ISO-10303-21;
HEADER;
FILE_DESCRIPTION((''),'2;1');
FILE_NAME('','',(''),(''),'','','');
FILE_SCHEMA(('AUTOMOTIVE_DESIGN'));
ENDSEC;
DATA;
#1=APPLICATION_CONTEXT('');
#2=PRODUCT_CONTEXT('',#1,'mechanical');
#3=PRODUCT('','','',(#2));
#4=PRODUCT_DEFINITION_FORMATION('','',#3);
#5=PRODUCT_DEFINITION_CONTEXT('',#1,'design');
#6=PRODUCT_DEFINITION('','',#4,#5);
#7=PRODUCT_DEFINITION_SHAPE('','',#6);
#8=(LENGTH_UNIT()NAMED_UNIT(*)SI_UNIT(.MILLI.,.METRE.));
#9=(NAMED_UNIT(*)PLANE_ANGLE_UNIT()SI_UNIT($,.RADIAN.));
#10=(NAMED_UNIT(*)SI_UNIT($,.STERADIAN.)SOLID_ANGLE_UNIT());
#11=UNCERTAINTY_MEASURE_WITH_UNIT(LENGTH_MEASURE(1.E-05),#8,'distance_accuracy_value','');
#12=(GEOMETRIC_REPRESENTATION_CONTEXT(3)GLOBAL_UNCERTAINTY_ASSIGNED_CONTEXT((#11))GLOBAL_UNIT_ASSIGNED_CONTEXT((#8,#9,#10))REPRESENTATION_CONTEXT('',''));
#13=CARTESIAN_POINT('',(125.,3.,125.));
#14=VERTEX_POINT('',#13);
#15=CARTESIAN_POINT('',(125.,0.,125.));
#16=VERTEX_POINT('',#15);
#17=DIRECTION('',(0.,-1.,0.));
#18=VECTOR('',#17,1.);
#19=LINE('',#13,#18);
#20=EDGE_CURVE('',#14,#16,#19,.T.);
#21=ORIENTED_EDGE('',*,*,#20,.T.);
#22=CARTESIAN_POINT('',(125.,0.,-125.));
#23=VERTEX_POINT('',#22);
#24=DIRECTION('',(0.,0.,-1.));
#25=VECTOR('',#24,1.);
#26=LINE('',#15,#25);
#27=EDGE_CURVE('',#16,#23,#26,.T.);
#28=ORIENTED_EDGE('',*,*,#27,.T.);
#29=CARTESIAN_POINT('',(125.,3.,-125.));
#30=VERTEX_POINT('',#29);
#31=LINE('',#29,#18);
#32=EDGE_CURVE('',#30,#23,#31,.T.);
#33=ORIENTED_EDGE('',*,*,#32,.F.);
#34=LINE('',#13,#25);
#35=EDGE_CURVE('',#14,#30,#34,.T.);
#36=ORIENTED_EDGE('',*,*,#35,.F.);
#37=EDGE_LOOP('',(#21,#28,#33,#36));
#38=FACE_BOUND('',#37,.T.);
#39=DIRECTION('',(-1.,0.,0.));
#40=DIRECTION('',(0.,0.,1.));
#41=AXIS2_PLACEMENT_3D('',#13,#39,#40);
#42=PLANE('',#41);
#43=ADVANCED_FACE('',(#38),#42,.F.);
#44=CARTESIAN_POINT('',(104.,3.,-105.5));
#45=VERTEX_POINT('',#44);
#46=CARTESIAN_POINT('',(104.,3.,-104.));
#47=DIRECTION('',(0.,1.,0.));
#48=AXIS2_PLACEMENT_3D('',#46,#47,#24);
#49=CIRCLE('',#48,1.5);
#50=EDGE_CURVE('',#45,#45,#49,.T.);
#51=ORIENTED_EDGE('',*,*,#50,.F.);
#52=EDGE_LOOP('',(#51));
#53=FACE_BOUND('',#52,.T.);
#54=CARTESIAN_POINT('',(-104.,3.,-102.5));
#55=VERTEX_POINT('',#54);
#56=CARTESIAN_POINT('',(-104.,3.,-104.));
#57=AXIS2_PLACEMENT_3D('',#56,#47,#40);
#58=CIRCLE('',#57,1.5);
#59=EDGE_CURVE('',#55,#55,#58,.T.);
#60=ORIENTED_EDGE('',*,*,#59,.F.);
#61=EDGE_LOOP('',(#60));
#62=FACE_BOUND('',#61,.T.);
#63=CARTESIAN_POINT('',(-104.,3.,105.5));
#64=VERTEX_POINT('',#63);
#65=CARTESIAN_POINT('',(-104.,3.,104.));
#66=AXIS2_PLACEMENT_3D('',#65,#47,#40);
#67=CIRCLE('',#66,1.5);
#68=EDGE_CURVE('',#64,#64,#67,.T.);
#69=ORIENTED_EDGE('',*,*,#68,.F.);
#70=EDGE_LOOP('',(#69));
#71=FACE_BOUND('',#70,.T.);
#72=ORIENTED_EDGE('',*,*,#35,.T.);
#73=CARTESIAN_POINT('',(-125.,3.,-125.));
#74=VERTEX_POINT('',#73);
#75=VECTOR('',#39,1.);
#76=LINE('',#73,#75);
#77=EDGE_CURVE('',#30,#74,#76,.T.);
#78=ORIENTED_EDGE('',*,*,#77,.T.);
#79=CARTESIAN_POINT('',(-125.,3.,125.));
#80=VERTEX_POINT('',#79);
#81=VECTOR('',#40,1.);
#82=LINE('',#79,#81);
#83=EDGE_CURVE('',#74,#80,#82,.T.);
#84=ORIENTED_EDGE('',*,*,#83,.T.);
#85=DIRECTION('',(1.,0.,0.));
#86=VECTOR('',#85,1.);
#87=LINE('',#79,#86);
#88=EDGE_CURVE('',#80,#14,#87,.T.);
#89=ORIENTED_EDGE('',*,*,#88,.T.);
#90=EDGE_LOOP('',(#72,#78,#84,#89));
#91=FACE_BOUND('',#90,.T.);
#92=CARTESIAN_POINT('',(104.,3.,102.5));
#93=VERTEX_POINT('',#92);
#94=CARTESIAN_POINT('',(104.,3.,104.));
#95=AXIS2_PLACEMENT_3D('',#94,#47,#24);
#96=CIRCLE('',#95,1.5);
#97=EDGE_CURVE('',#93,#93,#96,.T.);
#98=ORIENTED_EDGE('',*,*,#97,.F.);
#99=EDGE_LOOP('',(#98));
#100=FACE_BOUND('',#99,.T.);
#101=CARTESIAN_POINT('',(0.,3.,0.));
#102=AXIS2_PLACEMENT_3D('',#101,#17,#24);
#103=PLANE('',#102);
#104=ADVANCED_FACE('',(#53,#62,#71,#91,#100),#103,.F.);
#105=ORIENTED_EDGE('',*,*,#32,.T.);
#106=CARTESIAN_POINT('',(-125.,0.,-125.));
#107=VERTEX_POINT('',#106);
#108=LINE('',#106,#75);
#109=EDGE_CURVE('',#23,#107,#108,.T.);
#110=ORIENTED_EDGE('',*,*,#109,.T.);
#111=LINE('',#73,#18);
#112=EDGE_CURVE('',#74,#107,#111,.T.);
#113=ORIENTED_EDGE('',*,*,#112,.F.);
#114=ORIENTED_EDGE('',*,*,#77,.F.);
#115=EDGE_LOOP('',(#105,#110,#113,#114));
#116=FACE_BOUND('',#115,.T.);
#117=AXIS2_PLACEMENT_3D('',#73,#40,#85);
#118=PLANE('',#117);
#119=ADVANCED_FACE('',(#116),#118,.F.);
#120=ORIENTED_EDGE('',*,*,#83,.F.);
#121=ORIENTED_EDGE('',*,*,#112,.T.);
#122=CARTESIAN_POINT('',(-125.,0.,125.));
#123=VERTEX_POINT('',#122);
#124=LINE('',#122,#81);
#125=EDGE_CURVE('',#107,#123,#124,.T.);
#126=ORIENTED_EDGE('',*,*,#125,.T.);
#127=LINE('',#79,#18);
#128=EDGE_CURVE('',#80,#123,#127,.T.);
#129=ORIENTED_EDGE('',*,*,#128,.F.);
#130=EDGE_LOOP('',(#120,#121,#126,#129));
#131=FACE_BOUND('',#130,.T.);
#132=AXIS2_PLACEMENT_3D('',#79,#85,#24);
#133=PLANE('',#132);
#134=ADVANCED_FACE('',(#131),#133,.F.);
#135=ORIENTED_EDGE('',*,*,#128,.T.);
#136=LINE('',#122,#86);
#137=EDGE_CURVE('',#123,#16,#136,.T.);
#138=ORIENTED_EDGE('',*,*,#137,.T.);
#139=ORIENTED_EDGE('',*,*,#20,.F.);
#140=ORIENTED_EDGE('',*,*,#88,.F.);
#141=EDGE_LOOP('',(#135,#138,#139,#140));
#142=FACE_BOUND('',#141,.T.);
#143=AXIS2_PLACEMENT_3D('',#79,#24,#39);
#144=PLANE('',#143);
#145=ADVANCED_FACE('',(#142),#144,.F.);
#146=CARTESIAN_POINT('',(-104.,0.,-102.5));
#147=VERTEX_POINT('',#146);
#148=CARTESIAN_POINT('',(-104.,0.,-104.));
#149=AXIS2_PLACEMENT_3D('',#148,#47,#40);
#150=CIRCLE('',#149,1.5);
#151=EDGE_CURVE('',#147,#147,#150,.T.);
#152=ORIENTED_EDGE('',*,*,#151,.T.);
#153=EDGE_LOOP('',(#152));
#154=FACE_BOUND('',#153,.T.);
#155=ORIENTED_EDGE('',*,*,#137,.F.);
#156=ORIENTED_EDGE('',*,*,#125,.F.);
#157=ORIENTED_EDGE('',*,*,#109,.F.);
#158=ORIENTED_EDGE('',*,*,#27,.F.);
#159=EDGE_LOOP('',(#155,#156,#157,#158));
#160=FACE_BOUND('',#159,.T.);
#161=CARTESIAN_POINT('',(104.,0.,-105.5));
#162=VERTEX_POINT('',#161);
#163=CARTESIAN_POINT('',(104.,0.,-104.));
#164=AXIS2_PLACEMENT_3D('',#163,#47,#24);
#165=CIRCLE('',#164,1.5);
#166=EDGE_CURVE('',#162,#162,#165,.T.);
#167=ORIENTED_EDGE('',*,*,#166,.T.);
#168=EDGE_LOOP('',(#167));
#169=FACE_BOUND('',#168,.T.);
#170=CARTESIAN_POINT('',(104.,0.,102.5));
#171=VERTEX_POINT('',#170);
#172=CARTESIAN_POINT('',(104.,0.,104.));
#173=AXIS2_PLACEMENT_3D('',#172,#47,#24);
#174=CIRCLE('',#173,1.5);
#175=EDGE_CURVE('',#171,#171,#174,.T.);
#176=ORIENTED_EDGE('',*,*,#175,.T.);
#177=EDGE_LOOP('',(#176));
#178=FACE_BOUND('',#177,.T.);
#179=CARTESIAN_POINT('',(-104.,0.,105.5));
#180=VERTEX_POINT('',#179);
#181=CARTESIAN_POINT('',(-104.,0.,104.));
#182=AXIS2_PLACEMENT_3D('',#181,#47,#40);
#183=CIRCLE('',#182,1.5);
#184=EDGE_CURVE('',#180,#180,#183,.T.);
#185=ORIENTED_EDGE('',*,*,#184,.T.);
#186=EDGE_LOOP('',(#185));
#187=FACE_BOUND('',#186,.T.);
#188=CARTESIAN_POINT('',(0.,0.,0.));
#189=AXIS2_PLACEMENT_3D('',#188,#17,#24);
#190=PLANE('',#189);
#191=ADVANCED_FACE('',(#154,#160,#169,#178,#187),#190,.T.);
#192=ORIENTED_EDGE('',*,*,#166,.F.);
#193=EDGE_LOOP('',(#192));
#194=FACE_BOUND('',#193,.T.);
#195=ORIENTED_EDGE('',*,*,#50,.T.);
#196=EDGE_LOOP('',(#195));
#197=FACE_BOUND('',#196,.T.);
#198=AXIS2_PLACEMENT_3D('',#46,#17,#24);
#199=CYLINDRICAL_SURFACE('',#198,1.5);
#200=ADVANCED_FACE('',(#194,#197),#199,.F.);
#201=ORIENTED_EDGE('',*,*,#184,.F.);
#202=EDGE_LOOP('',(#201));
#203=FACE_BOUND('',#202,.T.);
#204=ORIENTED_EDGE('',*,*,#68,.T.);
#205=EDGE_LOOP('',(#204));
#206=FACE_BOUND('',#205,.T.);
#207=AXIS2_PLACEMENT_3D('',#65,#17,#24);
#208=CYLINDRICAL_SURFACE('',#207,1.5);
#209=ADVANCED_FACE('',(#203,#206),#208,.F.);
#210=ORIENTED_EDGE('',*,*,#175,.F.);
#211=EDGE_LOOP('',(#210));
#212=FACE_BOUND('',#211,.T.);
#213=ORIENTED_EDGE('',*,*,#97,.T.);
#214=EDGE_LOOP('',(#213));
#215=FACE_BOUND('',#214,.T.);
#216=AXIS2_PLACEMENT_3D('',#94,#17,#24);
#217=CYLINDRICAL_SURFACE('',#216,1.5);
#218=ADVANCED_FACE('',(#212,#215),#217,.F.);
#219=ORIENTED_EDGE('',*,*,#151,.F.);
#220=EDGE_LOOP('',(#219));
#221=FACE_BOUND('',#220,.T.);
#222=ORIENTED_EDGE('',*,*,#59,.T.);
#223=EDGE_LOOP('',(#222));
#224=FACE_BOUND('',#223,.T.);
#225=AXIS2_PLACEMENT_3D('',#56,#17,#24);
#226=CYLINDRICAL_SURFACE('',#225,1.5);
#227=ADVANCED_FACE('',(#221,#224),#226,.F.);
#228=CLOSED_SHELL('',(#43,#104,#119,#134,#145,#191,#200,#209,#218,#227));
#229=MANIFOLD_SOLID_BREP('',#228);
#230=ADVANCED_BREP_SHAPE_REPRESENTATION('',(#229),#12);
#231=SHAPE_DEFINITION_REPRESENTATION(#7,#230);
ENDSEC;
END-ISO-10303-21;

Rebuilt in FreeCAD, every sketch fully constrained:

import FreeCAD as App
import Part
import Sketcher

V = App.Vector

doc = App.newDocument("Part")
body = doc.addObject("PartDesign::Body", "Body")

# Sketch on XZ plane
sketch1 = doc.addObject("Sketcher::SketchObject", "Sketch")
body.addObject(sketch1)
sketch1.AttachmentSupport = (doc.XZ_Plane, [""])
sketch1.MapMode = "FlatFace"
sketch1.addGeometry([
    Part.LineSegment(V(-125, -125, 0), V(-125, 125, 0)),  # 0
    Part.LineSegment(V(-125, 125, 0), V(125, 125, 0)),  # 1
    Part.LineSegment(V(125, 125, 0), V(125, -125, 0)),  # 2
    Part.LineSegment(V(125, -125, 0), V(-125, -125, 0)),  # 3
    Part.Circle(V(-104, 104, 0), V(0, 0, 1), 1.5),  # 4
    Part.Circle(V(104, 104, 0), V(0, 0, 1), 1.5),  # 5
    Part.Circle(V(-104, -104, 0), V(0, 0, 1), 1.5),  # 6
    Part.Circle(V(104, -104, 0), V(0, 0, 1), 1.5),  # 7
], False)
sketch1.addConstraint([
    Sketcher.Constraint("Coincident", 0, 2, 1, 1),
    Sketcher.Constraint("Coincident", 1, 2, 2, 1),
    Sketcher.Constraint("Coincident", 2, 2, 3, 1),
    Sketcher.Constraint("Coincident", 3, 2, 0, 1),
    Sketcher.Constraint("Vertical", 0),
    Sketcher.Constraint("Horizontal", 1),
    Sketcher.Constraint("Vertical", 2),
    Sketcher.Constraint("Horizontal", 3),
    Sketcher.Constraint("Equal", 4, 5),
    Sketcher.Constraint("Equal", 5, 6),
    Sketcher.Constraint("Equal", 6, 7),
    Sketcher.Constraint("Symmetric", 5, 3, 6, 3, -1, 1),
    Sketcher.Constraint("Symmetric", 4, 3, 7, 3, -1, 1),
    Sketcher.Constraint("Symmetric", 0, 2, 2, 2, -1, 1),
    Sketcher.Constraint("Symmetric", 4, 3, 5, 3, -2),
    Sketcher.Constraint("Equal", 3, 0),
    Sketcher.Constraint("Diameter", 4, 3.0),
    Sketcher.Constraint("DistanceX", 1, 1, 1, 2, 250.0),
    Sketcher.Constraint("DistanceX", 4, 3, -1, 1, 104.0),
    Sketcher.Constraint("DistanceY", -1, 1, 4, 3, 104.0),
])
pad1 = doc.addObject("PartDesign::Pad", "Pad")
body.addObject(pad1)
pad1.Profile = sketch1
pad1.Length = 3
pad1.Reversed = True

doc.recompute()
